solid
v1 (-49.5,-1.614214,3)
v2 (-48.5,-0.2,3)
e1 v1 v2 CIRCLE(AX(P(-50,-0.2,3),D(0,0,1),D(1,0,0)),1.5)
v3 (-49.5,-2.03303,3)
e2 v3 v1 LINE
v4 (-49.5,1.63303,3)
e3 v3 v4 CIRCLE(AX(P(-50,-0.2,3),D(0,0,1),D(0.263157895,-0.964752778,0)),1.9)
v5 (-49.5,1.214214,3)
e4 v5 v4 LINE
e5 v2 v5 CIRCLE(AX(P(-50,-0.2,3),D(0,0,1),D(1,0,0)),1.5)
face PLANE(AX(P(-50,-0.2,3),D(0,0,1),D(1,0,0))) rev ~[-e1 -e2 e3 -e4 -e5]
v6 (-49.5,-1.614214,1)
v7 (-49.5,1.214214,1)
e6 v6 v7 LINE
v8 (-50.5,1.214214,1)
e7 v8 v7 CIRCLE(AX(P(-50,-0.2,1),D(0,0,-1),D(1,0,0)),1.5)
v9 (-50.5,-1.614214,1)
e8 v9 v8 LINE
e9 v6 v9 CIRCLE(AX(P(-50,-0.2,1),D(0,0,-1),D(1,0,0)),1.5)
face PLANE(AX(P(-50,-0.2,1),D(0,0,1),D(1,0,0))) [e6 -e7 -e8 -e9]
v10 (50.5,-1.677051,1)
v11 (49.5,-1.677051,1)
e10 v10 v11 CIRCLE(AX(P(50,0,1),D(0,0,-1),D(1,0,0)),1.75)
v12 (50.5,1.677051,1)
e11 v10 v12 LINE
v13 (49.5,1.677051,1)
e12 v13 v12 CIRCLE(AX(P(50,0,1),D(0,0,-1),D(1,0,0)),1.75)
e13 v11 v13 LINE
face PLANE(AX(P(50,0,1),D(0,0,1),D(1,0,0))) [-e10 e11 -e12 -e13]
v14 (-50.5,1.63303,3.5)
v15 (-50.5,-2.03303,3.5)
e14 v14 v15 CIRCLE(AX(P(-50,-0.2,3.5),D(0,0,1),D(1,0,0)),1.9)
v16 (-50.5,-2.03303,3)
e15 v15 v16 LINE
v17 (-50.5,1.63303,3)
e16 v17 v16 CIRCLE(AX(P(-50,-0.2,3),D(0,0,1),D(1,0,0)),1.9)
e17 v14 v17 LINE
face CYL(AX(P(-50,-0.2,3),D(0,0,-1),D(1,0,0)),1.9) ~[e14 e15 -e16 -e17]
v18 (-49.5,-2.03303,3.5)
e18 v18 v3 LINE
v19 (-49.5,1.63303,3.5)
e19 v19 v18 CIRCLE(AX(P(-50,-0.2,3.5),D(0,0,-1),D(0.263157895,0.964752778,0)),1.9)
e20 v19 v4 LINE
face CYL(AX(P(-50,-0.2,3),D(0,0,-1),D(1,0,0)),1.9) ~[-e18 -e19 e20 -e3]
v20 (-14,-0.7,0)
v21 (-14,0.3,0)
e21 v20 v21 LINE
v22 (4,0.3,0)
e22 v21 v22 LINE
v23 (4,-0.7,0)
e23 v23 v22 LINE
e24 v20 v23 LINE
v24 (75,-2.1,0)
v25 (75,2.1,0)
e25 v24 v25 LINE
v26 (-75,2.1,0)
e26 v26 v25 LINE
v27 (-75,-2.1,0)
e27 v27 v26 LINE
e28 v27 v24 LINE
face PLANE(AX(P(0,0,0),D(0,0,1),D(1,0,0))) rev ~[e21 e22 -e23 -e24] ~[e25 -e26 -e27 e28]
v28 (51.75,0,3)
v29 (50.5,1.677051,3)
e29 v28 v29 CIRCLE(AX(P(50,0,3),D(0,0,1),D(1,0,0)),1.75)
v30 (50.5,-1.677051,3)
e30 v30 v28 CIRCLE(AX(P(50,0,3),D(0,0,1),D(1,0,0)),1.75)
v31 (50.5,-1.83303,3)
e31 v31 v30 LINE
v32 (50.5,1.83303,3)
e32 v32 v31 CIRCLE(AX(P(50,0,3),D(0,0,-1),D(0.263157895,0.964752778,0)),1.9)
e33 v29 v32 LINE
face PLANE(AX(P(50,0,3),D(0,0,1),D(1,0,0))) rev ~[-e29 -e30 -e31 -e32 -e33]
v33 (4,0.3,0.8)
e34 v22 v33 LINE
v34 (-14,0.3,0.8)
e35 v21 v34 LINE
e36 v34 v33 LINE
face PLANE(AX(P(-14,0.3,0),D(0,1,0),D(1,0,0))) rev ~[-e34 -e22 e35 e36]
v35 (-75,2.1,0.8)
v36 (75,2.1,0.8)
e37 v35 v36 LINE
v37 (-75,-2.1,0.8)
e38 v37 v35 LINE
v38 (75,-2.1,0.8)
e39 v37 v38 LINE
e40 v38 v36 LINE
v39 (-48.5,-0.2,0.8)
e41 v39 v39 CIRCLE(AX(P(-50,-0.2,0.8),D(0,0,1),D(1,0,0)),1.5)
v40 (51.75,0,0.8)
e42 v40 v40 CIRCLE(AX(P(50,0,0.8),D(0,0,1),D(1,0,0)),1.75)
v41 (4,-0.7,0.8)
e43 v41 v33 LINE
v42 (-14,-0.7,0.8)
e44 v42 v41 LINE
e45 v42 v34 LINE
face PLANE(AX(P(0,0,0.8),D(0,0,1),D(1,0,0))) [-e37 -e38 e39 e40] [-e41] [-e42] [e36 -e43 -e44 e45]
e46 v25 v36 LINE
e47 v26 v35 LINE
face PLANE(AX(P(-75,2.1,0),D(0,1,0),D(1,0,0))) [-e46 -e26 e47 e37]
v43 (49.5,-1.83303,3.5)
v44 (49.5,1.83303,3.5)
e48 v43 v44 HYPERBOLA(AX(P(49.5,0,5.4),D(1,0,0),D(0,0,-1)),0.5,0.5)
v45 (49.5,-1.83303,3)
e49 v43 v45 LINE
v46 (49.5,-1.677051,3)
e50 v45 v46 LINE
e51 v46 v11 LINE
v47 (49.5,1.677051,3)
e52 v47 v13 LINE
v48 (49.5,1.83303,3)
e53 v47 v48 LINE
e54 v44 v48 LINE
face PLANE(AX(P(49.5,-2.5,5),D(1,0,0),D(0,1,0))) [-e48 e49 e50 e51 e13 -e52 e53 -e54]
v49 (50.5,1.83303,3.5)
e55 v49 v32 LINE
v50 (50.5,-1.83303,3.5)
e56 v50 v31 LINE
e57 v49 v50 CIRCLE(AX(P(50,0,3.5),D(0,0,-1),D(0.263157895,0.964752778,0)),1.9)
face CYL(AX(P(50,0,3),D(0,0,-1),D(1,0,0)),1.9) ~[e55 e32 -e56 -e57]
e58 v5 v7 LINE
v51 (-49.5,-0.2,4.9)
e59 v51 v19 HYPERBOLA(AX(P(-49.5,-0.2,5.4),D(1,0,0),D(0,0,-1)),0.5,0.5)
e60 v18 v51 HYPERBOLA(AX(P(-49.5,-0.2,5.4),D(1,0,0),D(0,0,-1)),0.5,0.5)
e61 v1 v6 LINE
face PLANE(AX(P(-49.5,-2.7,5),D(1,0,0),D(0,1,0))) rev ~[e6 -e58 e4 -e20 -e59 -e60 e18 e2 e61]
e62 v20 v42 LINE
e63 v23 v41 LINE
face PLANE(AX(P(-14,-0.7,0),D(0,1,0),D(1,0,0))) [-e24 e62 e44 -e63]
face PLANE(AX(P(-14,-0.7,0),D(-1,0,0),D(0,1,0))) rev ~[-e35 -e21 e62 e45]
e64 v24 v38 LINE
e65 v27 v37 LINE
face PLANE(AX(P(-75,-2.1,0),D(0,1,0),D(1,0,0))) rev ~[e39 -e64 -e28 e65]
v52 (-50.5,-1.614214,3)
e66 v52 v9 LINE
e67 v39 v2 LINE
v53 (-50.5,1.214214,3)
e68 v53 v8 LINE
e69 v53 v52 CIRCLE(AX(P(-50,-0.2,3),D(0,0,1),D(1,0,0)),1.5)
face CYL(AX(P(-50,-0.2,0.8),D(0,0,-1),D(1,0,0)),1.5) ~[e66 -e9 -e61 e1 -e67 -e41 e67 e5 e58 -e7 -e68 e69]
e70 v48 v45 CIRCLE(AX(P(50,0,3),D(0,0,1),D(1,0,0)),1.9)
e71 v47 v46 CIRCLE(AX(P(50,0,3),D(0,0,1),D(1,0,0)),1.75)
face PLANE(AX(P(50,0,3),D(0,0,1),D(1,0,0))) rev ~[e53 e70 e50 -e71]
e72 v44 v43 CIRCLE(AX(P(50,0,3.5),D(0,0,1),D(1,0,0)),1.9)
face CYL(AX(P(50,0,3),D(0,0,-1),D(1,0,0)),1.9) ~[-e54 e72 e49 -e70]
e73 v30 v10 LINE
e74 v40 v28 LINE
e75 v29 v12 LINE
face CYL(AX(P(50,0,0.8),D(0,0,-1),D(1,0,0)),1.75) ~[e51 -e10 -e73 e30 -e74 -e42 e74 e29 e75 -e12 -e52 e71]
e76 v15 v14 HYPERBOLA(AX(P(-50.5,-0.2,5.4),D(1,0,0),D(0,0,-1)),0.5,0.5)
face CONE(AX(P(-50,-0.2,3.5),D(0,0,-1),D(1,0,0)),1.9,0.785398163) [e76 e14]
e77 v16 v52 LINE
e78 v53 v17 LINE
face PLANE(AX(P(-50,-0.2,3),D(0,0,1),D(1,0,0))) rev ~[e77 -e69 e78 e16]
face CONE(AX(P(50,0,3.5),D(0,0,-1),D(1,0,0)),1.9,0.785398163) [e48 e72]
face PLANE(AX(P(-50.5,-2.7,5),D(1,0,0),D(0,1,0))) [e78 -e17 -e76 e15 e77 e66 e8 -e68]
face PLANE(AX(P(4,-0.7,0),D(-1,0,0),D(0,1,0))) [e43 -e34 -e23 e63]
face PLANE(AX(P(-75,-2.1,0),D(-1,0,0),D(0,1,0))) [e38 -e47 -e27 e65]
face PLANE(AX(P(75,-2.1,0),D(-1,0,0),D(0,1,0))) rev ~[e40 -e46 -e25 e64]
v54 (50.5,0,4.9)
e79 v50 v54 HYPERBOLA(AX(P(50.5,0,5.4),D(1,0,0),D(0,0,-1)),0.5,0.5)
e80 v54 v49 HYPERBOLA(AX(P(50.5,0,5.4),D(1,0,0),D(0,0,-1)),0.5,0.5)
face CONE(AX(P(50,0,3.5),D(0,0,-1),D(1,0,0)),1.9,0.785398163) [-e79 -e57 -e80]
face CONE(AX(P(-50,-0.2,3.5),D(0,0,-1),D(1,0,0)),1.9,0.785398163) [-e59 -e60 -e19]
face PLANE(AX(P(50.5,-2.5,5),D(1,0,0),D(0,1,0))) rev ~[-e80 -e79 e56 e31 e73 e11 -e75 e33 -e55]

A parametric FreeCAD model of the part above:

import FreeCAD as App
import Part
import Sketcher

V = App.Vector
Q = App.Units.Quantity


def edges_at(feature, points):
    """Names of the edges that pass closest to the given points."""
    edges = feature.Shape.Edges
    near = lambda p: min(range(len(edges)), key=lambda i: edges[i].distToShape(Part.Vertex(*p))[0])
    return sorted({f"Edge{near(p) + 1}" for p in points})


def add_polygon(sketch, points):
    """Adds a closed chain of lines whose ends are joined by coincident constraints."""
    first, n = sketch.GeometryCount, len(points)
    for a, b in zip(points, points[1:] + points[:1]):
        sketch.addGeometry(Part.LineSegment(App.Vector(*a, 0), App.Vector(*b, 0)), False)
    for i in range(n):
        sketch.addConstraint(Sketcher.Constraint("Coincident", first + i, 2, first + (i + 1) % n, 1))

doc = App.newDocument("Part")
body = doc.addObject("PartDesign::Body", "Body")

sketch1 = body.newObject("Sketcher::SketchObject", "Sketch")
sketch1.AttachmentSupport = (doc.getObject("XY_Plane"), [""])
sketch1.MapMode = "FlatFace"
add_polygon(sketch1, [(-75, 2.1), (-75, -2.1), (75, -2.1), (75, 2.1)])
add_polygon(sketch1, [(4, -0.7), (-14, -0.7), (-14, 0.3), (4, 0.3)])
sketch1.addConstraint(Sketcher.Constraint("Vertical", 0))
sketch1.addConstraint(Sketcher.Constraint("Horizontal", 1))
sketch1.addConstraint(Sketcher.Constraint("Vertical", 2))
sketch1.addConstraint(Sketcher.Constraint("Horizontal", 3))
sketch1.addConstraint(Sketcher.Constraint("Horizontal", 4))
sketch1.addConstraint(Sketcher.Constraint("Vertical", 5))
sketch1.addConstraint(Sketcher.Constraint("Horizontal", 6))
sketch1.addConstraint(Sketcher.Constraint("Vertical", 7))
sketch1.addConstraint(Sketcher.Constraint("Symmetric", 0, 2, 2, 2, -1, 1))
sketch1.addConstraint(Sketcher.Constraint("DistanceX", 1, 1, 1, 2, Q("150 mm")))
sketch1.addConstraint(Sketcher.Constraint("DistanceX", 4, 2, 4, 1, Q("18 mm")))
sketch1.addConstraint(Sketcher.Constraint("DistanceY", 5, 1, 5, 2, Q("1 mm")))
sketch1.addConstraint(Sketcher.Constraint("DistanceY", 0, 2, 0, 1, Q("4.2 mm")))
sketch1.addConstraint(Sketcher.Constraint("DistanceX", 4, 2, -1, 1, Q("14 mm")))
sketch1.addConstraint(Sketcher.Constraint("DistanceY", 4, 2, -1, 1, Q("0.7 mm")))
pad1 = body.newObject("PartDesign::Pad", "Pad")
pad1.Profile = sketch1
pad1.Length = 0.8

sketch2 = body.newObject("Sketcher::SketchObject", "Sketch001")
sketch2.AttachmentSupport = (doc.getObject("XY_Plane"), [""])
sketch2.MapMode = "FlatFace"
sketch2.AttachmentOffset = App.Placement(V(0, 0, 0.8), App.Rotation())
sketch2.addGeometry(Part.Circle(V(-50, -0.2, 0), V(0, 0, 1), 1.5), False)
sketch2.addGeometry(Part.Circle(V(50, 0, 0), V(0, 0, 1), 1.8), False)
sketch2.addConstraint(Sketcher.Constraint("PointOnObject", 1, 3, -1))
sketch2.addConstraint(Sketcher.Constraint("Diameter", 0, Q("3 mm")))
sketch2.addConstraint(Sketcher.Constraint("Diameter", 1, Q("3.5 mm")))
sketch2.addConstraint(Sketcher.Constraint("DistanceX", 0, 3, -1, 1, Q("50 mm")))
sketch2.addConstraint(Sketcher.Constraint("DistanceX", -1, 1, 1, 3, Q("50 mm")))
sketch2.addConstraint(Sketcher.Constraint("DistanceY", 0, 3, -1, 1, Q("0.2 mm")))
pad2 = body.newObject("PartDesign::Pad", "Pad001")
pad2.Profile = sketch2
pad2.Length = 2.2

sketch3 = body.newObject("Sketcher::SketchObject", "Sketch002")
sketch3.AttachmentSupport = (doc.getObject("XY_Plane"), [""])
sketch3.MapMode = "FlatFace"
sketch3.AttachmentOffset = App.Placement(V(0, 0, 3), App.Rotation())
sketch3.addGeometry(Part.Circle(V(-50, -0.2, 0), V(0, 0, 1), 1.9), False)
sketch3.addGeometry(Part.Circle(V(50, 0, 0), V(0, 0, 1), 1.9), False)
sketch3.addConstraint(Sketcher.Constraint("Equal", 0, 1))
sketch3.addConstraint(Sketcher.Constraint("PointOnObject", 1, 3, -1))
sketch3.addConstraint(Sketcher.Constraint("Diameter", 0, Q("3.8 mm")))
sketch3.addConstraint(Sketcher.Constraint("DistanceX", 0, 3, -1, 1, Q("50 mm")))
sketch3.addConstraint(Sketcher.Constraint("DistanceX", -1, 1, 1, 3, Q("50 mm")))
sketch3.addConstraint(Sketcher.Constraint("DistanceY", 0, 3, -1, 1, Q("0.2 mm")))
pad3 = body.newObject("PartDesign::Pad", "Pad002")
pad3.Profile = sketch3
pad3.Length = 2
doc.recompute()

chamfer = body.newObject("PartDesign::Chamfer", "Chamfer")
chamfer.Base = (pad3, edges_at(pad3, [(-51.9, -0.2, 5), (48.1, 0, 5)]))
chamfer.Size = 1.5

sketch4 = body.newObject("Sketcher::SketchObject", "Sketch003")
sketch4.AttachmentSupport = (doc.getObject("XY_Plane"), [""])
sketch4.MapMode = "FlatFace"
sketch4.AttachmentOffset = App.Placement(V(0, 0, 5), App.Rotation())
add_polygon(sketch4, [(-50.5, 2.3), (-50.5, -2.7), (-49.5, -2.7), (-49.5, 2.3)])
add_polygon(sketch4, [(49.5, 2.5), (49.5, -2.5), (50.5, -2.5), (50.5, 2.5)])
sketch4.addConstraint(Sketcher.Constraint("Vertical", 0))
sketch4.addConstraint(Sketcher.Constraint("Horizontal", 1))
sketch4.addConstraint(Sketcher.Constraint("Vertical", 2))
sketch4.addConstraint(Sketcher.Constraint("Horizontal", 3))
sketch4.addConstraint(Sketcher.Constraint("Vertical", 4))
sketch4.addConstraint(Sketcher.Constraint("Horizontal", 5))
sketch4.addConstraint(Sketcher.Constraint("Vertical", 6))
sketch4.addConstraint(Sketcher.Constraint("Horizontal", 7))
sketch4.addConstraint(Sketcher.Constraint("Equal", 3, 5))
sketch4.addConstraint(Sketcher.Constraint("Equal", 2, 4))
sketch4.addConstraint(Sketcher.Constraint("DistanceX", 1, 1, 1, 2, Q("1 mm")))
sketch4.addConstraint(Sketcher.Constraint("DistanceY", 0, 2, 0, 1, Q("5 mm")))
sketch4.addConstraint(Sketcher.Constraint("DistanceX", 1, 2, 4, 2, Q("99 mm")))
sketch4.addConstraint(Sketcher.Constraint("DistanceX", 0, 2, -1, 1, Q("50.5 mm")))
sketch4.addConstraint(Sketcher.Constraint("DistanceY", 0, 2, -1, 1, Q("2.7 mm")))
sketch4.addConstraint(Sketcher.Constraint("DistanceY", 4, 2, -1, 1, Q("2.5 mm")))
pocket1 = body.newObject("PartDesign::Pocket", "Pocket")
pocket1.Profile = sketch4
pocket1.Length = 4

doc.recompute()
